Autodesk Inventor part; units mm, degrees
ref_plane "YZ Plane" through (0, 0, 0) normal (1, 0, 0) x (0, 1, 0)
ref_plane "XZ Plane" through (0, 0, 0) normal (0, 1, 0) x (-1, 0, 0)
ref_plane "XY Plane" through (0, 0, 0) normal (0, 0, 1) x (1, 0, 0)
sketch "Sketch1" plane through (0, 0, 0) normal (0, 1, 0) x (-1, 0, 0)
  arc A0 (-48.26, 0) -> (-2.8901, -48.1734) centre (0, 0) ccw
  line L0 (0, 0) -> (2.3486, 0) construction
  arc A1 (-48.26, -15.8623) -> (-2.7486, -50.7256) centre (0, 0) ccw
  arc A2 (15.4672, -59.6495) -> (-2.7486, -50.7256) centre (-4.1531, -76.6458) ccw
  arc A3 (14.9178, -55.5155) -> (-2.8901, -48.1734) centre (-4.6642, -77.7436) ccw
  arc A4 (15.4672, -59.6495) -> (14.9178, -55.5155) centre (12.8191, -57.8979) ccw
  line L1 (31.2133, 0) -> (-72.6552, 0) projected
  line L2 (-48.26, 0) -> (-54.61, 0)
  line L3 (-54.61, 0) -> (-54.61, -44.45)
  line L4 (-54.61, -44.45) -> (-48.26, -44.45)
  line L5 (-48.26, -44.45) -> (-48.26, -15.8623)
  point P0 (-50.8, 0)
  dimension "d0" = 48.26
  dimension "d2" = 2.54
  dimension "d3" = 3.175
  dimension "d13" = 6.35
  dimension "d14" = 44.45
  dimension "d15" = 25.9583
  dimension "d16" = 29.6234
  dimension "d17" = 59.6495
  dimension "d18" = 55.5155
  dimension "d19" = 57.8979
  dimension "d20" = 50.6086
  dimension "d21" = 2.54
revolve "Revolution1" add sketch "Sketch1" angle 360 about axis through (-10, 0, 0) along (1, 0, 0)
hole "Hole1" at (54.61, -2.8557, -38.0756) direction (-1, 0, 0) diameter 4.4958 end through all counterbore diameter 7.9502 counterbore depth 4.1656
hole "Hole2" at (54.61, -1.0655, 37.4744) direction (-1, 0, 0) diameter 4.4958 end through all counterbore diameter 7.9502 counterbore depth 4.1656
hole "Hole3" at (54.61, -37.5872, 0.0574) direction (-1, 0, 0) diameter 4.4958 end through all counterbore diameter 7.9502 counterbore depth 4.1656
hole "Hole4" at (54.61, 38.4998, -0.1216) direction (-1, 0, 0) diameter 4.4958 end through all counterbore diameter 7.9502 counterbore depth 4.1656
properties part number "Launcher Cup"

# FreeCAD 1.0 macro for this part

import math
import FreeCAD as App
import Part
import Sketcher

V = App.Vector
Q = App.Units.Quantity

doc = App.newDocument("Part")
body = doc.addObject("PartDesign::Body", "Body")

# Sketch on XZ plane
sketch1 = body.newObject("Sketcher::SketchObject", "Sketch")
sketch1.AttachmentSupport = (doc.getObject("XZ_Plane"), [""])
sketch1.MapMode = "FlatFace"
sketch1.addGeometry([
    Part.ArcOfCircle(Part.Circle(V(0, 0, 0), V(0, 0, 1), 48.26), math.radians(-86.56673), math.radians(0)),  # 0
    Part.LineSegment(V(48.26, 0, 0), V(54.61, 0, 0)),  # 1
    Part.LineSegment(V(54.61, 0, 0), V(54.61, -44.45, 0)),  # 2
    Part.LineSegment(V(54.61, -44.45, 0), V(48.26, -44.45, 0)),  # 3
    Part.LineSegment(V(48.26, -44.45, 0), V(48.26, -15.8623, 0)),  # 4
    Part.ArcOfCircle(Part.Circle(V(0, 0, 0), V(0, 0, 1), 50.800002), math.radians(-86.898424), math.radians(-18.194878)),  # 5
    Part.ArcOfCircle(Part.Circle(V(4.1531, -76.6458, 0), V(0, 0, 1), 25.958243), math.radians(93.10157), math.radians(139.098894)),  # 6
    Part.ArcOfCircle(Part.Circle(V(-12.8191, -57.8979, 0), V(0, 0, 1), 3.174986), math.radians(131.377419), math.radians(213.482858)),  # 7
    Part.ArcOfCircle(Part.Circle(V(4.6642, -77.7436, 0), V(0, 0, 1), 29.623355), math.radians(93.433414), math.radians(131.378664)),  # 8
], False)
sketch1.addConstraint([
    Sketcher.Constraint("Coincident", 0, 2, 1, 1),
    Sketcher.Constraint("Coincident", 1, 2, 2, 1),
    Sketcher.Constraint("Coincident", 2, 2, 3, 1),
    Sketcher.Constraint("Coincident", 3, 2, 4, 1),
    Sketcher.Constraint("Coincident", 4, 2, 5, 2),
    Sketcher.Constraint("Tangent", 5, 1, 6, 1),
    Sketcher.Constraint("Coincident", 6, 2, 7, 2),
    Sketcher.Constraint("Tangent", 7, 1, 8, 2),
    Sketcher.Constraint("Tangent", 8, 1, 0, 1),
    Sketcher.Constraint("Horizontal", 1),
    Sketcher.Constraint("Vertical", 2),
    Sketcher.Constraint("Horizontal", 3),
    Sketcher.Constraint("Vertical", 4),
    Sketcher.Constraint("Coincident", 0, 3, -1, 1),
    Sketcher.Constraint("Coincident", 5, 3, -1, 1),
    Sketcher.Constraint("PointOnObject", 0, 2, -1),
    Sketcher.Constraint("Vertical", 0, 2, 3, 2),
    Sketcher.Constraint("Radius", 0, Q("1.9 in")),
    Sketcher.Constraint("Radius", 5, Q("2 in")),
    Sketcher.Constraint("Radius", 7, Q("0.125 in")),
    Sketcher.Constraint("DistanceX", 1, 1, 1, 2, Q("0.25 in")),
    Sketcher.Constraint("DistanceY", 2, 2, 2, 1, Q("1.75 in")),
    Sketcher.Constraint("Radius", 6, 25.9582),
    Sketcher.Constraint("Radius", 8, 29.6234),
    Sketcher.Constraint("DistanceY", 6, 2, -1, 1, Q("2.3484 in")),
    Sketcher.Constraint("DistanceY", 7, 3, -1, 1, 57.898),
    Sketcher.Constraint("DistanceX", -1, 1, 6, 3, Q("0.1635 in")),
])
revolution = body.newObject("PartDesign::Revolution", "Revolution")
revolution.Profile = sketch1
revolution.ReferenceAxis = (sketch1, ["H_Axis"])
revolution.Angle = 360

# Sketch on YZ plane
sketch2 = body.newObject("Sketcher::SketchObject", "Sketch001")
sketch2.AttachmentSupport = (doc.getObject("YZ_Plane"), [""])
sketch2.MapMode = "FlatFace"
sketch2.AttachmentOffset = App.Placement(V(0, 0, 2.15 * 25.4), App.Rotation())
sketch2.addGeometry(Part.Circle(V(-2.8557, -38.0756, 0), V(0, 0, 1), 2.2479), False)
sketch2.addConstraint([
    Sketcher.Constraint("Diameter", 0, Q("0.177 in")),
    Sketcher.Constraint("DistanceX", 0, 3, -1, 1, 2.8557),
    Sketcher.Constraint("DistanceY", 0, 3, -1, 1, 38.0756),
])
doc.recompute()
hole = body.newObject("PartDesign::Hole", "Hole")
hole.Profile = sketch2
hole.ThreadType = "None"
hole.Diameter = Q("0.177 in")
hole.DepthType = "ThroughAll"
hole.HoleCutType = "Counterbore"
hole.HoleCutDiameter = Q("0.313 in")
hole.HoleCutDepth = Q("0.164 in")

# Sketch on YZ plane
sketch3 = body.newObject("Sketcher::SketchObject", "Sketch002")
sketch3.AttachmentSupport = (doc.getObject("YZ_Plane"), [""])
sketch3.MapMode = "FlatFace"
sketch3.AttachmentOffset = App.Placement(V(0, 0, 2.15 * 25.4), App.Rotation())
sketch3.addGeometry(Part.Circle(V(-1.0655, 37.4744, 0), V(0, 0, 1), 2.2479), False)
sketch3.addConstraint([
    Sketcher.Constraint("Diameter", 0, Q("0.177 in")),
    Sketcher.Constraint("DistanceX", 0, 3, -1, 1, 1.0655),
    Sketcher.Constraint("DistanceY", -1, 1, 0, 3, 37.4744),
])
doc.recompute()
hole2 = body.newObject("PartDesign::Hole", "Hole001")
hole2.Profile = sketch3
hole2.ThreadType = "None"
hole2.Diameter = Q("0.177 in")
hole2.DepthType = "ThroughAll"
hole2.HoleCutType = "Counterbore"
hole2.HoleCutDiameter = Q("0.313 in")
hole2.HoleCutDepth = Q("0.164 in")

# Sketch on YZ plane
sketch4 = body.newObject("Sketcher::SketchObject", "Sketch003")
sketch4.AttachmentSupport = (doc.getObject("YZ_Plane"), [""])
sketch4.MapMode = "FlatFace"
sketch4.AttachmentOffset = App.Placement(V(0, 0, 2.15 * 25.4), App.Rotation())
sketch4.addGeometry(Part.Circle(V(-37.5872, 0.0574, 0), V(0, 0, 1), 2.2479), False)
sketch4.addConstraint([
    Sketcher.Constraint("Diameter", 0, Q("0.177 in")),
    Sketcher.Constraint("DistanceX", 0, 3, -1, 1, Q("1.4798 in")),
    Sketcher.Constraint("DistanceY", -1, 1, 0, 3, 0.0574),
])
doc.recompute()
hole3 = body.newObject("PartDesign::Hole", "Hole002")
hole3.Profile = sketch4
hole3.ThreadType = "None"
hole3.Diameter = Q("0.177 in")
hole3.DepthType = "ThroughAll"
hole3.HoleCutType = "Counterbore"
hole3.HoleCutDiameter = Q("0.313 in")
hole3.HoleCutDepth = Q("0.164 in")

# Sketch on YZ plane
sketch5 = body.newObject("Sketcher::SketchObject", "Sketch004")
sketch5.AttachmentSupport = (doc.getObject("YZ_Plane"), [""])
sketch5.MapMode = "FlatFace"
sketch5.AttachmentOffset = App.Placement(V(0, 0, 2.15 * 25.4), App.Rotation())
sketch5.addGeometry(Part.Circle(V(38.4998, -0.1216, 0), V(0, 0, 1), 2.2479), False)
sketch5.addConstraint([
    Sketcher.Constraint("Diameter", 0, Q("0.177 in")),
    Sketcher.Constraint("DistanceX", -1, 1, 0, 3, 38.4998),
    Sketcher.Constraint("DistanceY", 0, 3, -1, 1, 0.1216),
])
doc.recompute()
hole4 = body.newObject("PartDesign::Hole", "Hole003")
hole4.Profile = sketch5
hole4.ThreadType = "None"
hole4.Diameter = Q("0.177 in")
hole4.DepthType = "ThroughAll"
hole4.HoleCutType = "Counterbore"
hole4.HoleCutDiameter = Q("0.313 in")
hole4.HoleCutDepth = Q("0.164 in")

doc.recompute()
